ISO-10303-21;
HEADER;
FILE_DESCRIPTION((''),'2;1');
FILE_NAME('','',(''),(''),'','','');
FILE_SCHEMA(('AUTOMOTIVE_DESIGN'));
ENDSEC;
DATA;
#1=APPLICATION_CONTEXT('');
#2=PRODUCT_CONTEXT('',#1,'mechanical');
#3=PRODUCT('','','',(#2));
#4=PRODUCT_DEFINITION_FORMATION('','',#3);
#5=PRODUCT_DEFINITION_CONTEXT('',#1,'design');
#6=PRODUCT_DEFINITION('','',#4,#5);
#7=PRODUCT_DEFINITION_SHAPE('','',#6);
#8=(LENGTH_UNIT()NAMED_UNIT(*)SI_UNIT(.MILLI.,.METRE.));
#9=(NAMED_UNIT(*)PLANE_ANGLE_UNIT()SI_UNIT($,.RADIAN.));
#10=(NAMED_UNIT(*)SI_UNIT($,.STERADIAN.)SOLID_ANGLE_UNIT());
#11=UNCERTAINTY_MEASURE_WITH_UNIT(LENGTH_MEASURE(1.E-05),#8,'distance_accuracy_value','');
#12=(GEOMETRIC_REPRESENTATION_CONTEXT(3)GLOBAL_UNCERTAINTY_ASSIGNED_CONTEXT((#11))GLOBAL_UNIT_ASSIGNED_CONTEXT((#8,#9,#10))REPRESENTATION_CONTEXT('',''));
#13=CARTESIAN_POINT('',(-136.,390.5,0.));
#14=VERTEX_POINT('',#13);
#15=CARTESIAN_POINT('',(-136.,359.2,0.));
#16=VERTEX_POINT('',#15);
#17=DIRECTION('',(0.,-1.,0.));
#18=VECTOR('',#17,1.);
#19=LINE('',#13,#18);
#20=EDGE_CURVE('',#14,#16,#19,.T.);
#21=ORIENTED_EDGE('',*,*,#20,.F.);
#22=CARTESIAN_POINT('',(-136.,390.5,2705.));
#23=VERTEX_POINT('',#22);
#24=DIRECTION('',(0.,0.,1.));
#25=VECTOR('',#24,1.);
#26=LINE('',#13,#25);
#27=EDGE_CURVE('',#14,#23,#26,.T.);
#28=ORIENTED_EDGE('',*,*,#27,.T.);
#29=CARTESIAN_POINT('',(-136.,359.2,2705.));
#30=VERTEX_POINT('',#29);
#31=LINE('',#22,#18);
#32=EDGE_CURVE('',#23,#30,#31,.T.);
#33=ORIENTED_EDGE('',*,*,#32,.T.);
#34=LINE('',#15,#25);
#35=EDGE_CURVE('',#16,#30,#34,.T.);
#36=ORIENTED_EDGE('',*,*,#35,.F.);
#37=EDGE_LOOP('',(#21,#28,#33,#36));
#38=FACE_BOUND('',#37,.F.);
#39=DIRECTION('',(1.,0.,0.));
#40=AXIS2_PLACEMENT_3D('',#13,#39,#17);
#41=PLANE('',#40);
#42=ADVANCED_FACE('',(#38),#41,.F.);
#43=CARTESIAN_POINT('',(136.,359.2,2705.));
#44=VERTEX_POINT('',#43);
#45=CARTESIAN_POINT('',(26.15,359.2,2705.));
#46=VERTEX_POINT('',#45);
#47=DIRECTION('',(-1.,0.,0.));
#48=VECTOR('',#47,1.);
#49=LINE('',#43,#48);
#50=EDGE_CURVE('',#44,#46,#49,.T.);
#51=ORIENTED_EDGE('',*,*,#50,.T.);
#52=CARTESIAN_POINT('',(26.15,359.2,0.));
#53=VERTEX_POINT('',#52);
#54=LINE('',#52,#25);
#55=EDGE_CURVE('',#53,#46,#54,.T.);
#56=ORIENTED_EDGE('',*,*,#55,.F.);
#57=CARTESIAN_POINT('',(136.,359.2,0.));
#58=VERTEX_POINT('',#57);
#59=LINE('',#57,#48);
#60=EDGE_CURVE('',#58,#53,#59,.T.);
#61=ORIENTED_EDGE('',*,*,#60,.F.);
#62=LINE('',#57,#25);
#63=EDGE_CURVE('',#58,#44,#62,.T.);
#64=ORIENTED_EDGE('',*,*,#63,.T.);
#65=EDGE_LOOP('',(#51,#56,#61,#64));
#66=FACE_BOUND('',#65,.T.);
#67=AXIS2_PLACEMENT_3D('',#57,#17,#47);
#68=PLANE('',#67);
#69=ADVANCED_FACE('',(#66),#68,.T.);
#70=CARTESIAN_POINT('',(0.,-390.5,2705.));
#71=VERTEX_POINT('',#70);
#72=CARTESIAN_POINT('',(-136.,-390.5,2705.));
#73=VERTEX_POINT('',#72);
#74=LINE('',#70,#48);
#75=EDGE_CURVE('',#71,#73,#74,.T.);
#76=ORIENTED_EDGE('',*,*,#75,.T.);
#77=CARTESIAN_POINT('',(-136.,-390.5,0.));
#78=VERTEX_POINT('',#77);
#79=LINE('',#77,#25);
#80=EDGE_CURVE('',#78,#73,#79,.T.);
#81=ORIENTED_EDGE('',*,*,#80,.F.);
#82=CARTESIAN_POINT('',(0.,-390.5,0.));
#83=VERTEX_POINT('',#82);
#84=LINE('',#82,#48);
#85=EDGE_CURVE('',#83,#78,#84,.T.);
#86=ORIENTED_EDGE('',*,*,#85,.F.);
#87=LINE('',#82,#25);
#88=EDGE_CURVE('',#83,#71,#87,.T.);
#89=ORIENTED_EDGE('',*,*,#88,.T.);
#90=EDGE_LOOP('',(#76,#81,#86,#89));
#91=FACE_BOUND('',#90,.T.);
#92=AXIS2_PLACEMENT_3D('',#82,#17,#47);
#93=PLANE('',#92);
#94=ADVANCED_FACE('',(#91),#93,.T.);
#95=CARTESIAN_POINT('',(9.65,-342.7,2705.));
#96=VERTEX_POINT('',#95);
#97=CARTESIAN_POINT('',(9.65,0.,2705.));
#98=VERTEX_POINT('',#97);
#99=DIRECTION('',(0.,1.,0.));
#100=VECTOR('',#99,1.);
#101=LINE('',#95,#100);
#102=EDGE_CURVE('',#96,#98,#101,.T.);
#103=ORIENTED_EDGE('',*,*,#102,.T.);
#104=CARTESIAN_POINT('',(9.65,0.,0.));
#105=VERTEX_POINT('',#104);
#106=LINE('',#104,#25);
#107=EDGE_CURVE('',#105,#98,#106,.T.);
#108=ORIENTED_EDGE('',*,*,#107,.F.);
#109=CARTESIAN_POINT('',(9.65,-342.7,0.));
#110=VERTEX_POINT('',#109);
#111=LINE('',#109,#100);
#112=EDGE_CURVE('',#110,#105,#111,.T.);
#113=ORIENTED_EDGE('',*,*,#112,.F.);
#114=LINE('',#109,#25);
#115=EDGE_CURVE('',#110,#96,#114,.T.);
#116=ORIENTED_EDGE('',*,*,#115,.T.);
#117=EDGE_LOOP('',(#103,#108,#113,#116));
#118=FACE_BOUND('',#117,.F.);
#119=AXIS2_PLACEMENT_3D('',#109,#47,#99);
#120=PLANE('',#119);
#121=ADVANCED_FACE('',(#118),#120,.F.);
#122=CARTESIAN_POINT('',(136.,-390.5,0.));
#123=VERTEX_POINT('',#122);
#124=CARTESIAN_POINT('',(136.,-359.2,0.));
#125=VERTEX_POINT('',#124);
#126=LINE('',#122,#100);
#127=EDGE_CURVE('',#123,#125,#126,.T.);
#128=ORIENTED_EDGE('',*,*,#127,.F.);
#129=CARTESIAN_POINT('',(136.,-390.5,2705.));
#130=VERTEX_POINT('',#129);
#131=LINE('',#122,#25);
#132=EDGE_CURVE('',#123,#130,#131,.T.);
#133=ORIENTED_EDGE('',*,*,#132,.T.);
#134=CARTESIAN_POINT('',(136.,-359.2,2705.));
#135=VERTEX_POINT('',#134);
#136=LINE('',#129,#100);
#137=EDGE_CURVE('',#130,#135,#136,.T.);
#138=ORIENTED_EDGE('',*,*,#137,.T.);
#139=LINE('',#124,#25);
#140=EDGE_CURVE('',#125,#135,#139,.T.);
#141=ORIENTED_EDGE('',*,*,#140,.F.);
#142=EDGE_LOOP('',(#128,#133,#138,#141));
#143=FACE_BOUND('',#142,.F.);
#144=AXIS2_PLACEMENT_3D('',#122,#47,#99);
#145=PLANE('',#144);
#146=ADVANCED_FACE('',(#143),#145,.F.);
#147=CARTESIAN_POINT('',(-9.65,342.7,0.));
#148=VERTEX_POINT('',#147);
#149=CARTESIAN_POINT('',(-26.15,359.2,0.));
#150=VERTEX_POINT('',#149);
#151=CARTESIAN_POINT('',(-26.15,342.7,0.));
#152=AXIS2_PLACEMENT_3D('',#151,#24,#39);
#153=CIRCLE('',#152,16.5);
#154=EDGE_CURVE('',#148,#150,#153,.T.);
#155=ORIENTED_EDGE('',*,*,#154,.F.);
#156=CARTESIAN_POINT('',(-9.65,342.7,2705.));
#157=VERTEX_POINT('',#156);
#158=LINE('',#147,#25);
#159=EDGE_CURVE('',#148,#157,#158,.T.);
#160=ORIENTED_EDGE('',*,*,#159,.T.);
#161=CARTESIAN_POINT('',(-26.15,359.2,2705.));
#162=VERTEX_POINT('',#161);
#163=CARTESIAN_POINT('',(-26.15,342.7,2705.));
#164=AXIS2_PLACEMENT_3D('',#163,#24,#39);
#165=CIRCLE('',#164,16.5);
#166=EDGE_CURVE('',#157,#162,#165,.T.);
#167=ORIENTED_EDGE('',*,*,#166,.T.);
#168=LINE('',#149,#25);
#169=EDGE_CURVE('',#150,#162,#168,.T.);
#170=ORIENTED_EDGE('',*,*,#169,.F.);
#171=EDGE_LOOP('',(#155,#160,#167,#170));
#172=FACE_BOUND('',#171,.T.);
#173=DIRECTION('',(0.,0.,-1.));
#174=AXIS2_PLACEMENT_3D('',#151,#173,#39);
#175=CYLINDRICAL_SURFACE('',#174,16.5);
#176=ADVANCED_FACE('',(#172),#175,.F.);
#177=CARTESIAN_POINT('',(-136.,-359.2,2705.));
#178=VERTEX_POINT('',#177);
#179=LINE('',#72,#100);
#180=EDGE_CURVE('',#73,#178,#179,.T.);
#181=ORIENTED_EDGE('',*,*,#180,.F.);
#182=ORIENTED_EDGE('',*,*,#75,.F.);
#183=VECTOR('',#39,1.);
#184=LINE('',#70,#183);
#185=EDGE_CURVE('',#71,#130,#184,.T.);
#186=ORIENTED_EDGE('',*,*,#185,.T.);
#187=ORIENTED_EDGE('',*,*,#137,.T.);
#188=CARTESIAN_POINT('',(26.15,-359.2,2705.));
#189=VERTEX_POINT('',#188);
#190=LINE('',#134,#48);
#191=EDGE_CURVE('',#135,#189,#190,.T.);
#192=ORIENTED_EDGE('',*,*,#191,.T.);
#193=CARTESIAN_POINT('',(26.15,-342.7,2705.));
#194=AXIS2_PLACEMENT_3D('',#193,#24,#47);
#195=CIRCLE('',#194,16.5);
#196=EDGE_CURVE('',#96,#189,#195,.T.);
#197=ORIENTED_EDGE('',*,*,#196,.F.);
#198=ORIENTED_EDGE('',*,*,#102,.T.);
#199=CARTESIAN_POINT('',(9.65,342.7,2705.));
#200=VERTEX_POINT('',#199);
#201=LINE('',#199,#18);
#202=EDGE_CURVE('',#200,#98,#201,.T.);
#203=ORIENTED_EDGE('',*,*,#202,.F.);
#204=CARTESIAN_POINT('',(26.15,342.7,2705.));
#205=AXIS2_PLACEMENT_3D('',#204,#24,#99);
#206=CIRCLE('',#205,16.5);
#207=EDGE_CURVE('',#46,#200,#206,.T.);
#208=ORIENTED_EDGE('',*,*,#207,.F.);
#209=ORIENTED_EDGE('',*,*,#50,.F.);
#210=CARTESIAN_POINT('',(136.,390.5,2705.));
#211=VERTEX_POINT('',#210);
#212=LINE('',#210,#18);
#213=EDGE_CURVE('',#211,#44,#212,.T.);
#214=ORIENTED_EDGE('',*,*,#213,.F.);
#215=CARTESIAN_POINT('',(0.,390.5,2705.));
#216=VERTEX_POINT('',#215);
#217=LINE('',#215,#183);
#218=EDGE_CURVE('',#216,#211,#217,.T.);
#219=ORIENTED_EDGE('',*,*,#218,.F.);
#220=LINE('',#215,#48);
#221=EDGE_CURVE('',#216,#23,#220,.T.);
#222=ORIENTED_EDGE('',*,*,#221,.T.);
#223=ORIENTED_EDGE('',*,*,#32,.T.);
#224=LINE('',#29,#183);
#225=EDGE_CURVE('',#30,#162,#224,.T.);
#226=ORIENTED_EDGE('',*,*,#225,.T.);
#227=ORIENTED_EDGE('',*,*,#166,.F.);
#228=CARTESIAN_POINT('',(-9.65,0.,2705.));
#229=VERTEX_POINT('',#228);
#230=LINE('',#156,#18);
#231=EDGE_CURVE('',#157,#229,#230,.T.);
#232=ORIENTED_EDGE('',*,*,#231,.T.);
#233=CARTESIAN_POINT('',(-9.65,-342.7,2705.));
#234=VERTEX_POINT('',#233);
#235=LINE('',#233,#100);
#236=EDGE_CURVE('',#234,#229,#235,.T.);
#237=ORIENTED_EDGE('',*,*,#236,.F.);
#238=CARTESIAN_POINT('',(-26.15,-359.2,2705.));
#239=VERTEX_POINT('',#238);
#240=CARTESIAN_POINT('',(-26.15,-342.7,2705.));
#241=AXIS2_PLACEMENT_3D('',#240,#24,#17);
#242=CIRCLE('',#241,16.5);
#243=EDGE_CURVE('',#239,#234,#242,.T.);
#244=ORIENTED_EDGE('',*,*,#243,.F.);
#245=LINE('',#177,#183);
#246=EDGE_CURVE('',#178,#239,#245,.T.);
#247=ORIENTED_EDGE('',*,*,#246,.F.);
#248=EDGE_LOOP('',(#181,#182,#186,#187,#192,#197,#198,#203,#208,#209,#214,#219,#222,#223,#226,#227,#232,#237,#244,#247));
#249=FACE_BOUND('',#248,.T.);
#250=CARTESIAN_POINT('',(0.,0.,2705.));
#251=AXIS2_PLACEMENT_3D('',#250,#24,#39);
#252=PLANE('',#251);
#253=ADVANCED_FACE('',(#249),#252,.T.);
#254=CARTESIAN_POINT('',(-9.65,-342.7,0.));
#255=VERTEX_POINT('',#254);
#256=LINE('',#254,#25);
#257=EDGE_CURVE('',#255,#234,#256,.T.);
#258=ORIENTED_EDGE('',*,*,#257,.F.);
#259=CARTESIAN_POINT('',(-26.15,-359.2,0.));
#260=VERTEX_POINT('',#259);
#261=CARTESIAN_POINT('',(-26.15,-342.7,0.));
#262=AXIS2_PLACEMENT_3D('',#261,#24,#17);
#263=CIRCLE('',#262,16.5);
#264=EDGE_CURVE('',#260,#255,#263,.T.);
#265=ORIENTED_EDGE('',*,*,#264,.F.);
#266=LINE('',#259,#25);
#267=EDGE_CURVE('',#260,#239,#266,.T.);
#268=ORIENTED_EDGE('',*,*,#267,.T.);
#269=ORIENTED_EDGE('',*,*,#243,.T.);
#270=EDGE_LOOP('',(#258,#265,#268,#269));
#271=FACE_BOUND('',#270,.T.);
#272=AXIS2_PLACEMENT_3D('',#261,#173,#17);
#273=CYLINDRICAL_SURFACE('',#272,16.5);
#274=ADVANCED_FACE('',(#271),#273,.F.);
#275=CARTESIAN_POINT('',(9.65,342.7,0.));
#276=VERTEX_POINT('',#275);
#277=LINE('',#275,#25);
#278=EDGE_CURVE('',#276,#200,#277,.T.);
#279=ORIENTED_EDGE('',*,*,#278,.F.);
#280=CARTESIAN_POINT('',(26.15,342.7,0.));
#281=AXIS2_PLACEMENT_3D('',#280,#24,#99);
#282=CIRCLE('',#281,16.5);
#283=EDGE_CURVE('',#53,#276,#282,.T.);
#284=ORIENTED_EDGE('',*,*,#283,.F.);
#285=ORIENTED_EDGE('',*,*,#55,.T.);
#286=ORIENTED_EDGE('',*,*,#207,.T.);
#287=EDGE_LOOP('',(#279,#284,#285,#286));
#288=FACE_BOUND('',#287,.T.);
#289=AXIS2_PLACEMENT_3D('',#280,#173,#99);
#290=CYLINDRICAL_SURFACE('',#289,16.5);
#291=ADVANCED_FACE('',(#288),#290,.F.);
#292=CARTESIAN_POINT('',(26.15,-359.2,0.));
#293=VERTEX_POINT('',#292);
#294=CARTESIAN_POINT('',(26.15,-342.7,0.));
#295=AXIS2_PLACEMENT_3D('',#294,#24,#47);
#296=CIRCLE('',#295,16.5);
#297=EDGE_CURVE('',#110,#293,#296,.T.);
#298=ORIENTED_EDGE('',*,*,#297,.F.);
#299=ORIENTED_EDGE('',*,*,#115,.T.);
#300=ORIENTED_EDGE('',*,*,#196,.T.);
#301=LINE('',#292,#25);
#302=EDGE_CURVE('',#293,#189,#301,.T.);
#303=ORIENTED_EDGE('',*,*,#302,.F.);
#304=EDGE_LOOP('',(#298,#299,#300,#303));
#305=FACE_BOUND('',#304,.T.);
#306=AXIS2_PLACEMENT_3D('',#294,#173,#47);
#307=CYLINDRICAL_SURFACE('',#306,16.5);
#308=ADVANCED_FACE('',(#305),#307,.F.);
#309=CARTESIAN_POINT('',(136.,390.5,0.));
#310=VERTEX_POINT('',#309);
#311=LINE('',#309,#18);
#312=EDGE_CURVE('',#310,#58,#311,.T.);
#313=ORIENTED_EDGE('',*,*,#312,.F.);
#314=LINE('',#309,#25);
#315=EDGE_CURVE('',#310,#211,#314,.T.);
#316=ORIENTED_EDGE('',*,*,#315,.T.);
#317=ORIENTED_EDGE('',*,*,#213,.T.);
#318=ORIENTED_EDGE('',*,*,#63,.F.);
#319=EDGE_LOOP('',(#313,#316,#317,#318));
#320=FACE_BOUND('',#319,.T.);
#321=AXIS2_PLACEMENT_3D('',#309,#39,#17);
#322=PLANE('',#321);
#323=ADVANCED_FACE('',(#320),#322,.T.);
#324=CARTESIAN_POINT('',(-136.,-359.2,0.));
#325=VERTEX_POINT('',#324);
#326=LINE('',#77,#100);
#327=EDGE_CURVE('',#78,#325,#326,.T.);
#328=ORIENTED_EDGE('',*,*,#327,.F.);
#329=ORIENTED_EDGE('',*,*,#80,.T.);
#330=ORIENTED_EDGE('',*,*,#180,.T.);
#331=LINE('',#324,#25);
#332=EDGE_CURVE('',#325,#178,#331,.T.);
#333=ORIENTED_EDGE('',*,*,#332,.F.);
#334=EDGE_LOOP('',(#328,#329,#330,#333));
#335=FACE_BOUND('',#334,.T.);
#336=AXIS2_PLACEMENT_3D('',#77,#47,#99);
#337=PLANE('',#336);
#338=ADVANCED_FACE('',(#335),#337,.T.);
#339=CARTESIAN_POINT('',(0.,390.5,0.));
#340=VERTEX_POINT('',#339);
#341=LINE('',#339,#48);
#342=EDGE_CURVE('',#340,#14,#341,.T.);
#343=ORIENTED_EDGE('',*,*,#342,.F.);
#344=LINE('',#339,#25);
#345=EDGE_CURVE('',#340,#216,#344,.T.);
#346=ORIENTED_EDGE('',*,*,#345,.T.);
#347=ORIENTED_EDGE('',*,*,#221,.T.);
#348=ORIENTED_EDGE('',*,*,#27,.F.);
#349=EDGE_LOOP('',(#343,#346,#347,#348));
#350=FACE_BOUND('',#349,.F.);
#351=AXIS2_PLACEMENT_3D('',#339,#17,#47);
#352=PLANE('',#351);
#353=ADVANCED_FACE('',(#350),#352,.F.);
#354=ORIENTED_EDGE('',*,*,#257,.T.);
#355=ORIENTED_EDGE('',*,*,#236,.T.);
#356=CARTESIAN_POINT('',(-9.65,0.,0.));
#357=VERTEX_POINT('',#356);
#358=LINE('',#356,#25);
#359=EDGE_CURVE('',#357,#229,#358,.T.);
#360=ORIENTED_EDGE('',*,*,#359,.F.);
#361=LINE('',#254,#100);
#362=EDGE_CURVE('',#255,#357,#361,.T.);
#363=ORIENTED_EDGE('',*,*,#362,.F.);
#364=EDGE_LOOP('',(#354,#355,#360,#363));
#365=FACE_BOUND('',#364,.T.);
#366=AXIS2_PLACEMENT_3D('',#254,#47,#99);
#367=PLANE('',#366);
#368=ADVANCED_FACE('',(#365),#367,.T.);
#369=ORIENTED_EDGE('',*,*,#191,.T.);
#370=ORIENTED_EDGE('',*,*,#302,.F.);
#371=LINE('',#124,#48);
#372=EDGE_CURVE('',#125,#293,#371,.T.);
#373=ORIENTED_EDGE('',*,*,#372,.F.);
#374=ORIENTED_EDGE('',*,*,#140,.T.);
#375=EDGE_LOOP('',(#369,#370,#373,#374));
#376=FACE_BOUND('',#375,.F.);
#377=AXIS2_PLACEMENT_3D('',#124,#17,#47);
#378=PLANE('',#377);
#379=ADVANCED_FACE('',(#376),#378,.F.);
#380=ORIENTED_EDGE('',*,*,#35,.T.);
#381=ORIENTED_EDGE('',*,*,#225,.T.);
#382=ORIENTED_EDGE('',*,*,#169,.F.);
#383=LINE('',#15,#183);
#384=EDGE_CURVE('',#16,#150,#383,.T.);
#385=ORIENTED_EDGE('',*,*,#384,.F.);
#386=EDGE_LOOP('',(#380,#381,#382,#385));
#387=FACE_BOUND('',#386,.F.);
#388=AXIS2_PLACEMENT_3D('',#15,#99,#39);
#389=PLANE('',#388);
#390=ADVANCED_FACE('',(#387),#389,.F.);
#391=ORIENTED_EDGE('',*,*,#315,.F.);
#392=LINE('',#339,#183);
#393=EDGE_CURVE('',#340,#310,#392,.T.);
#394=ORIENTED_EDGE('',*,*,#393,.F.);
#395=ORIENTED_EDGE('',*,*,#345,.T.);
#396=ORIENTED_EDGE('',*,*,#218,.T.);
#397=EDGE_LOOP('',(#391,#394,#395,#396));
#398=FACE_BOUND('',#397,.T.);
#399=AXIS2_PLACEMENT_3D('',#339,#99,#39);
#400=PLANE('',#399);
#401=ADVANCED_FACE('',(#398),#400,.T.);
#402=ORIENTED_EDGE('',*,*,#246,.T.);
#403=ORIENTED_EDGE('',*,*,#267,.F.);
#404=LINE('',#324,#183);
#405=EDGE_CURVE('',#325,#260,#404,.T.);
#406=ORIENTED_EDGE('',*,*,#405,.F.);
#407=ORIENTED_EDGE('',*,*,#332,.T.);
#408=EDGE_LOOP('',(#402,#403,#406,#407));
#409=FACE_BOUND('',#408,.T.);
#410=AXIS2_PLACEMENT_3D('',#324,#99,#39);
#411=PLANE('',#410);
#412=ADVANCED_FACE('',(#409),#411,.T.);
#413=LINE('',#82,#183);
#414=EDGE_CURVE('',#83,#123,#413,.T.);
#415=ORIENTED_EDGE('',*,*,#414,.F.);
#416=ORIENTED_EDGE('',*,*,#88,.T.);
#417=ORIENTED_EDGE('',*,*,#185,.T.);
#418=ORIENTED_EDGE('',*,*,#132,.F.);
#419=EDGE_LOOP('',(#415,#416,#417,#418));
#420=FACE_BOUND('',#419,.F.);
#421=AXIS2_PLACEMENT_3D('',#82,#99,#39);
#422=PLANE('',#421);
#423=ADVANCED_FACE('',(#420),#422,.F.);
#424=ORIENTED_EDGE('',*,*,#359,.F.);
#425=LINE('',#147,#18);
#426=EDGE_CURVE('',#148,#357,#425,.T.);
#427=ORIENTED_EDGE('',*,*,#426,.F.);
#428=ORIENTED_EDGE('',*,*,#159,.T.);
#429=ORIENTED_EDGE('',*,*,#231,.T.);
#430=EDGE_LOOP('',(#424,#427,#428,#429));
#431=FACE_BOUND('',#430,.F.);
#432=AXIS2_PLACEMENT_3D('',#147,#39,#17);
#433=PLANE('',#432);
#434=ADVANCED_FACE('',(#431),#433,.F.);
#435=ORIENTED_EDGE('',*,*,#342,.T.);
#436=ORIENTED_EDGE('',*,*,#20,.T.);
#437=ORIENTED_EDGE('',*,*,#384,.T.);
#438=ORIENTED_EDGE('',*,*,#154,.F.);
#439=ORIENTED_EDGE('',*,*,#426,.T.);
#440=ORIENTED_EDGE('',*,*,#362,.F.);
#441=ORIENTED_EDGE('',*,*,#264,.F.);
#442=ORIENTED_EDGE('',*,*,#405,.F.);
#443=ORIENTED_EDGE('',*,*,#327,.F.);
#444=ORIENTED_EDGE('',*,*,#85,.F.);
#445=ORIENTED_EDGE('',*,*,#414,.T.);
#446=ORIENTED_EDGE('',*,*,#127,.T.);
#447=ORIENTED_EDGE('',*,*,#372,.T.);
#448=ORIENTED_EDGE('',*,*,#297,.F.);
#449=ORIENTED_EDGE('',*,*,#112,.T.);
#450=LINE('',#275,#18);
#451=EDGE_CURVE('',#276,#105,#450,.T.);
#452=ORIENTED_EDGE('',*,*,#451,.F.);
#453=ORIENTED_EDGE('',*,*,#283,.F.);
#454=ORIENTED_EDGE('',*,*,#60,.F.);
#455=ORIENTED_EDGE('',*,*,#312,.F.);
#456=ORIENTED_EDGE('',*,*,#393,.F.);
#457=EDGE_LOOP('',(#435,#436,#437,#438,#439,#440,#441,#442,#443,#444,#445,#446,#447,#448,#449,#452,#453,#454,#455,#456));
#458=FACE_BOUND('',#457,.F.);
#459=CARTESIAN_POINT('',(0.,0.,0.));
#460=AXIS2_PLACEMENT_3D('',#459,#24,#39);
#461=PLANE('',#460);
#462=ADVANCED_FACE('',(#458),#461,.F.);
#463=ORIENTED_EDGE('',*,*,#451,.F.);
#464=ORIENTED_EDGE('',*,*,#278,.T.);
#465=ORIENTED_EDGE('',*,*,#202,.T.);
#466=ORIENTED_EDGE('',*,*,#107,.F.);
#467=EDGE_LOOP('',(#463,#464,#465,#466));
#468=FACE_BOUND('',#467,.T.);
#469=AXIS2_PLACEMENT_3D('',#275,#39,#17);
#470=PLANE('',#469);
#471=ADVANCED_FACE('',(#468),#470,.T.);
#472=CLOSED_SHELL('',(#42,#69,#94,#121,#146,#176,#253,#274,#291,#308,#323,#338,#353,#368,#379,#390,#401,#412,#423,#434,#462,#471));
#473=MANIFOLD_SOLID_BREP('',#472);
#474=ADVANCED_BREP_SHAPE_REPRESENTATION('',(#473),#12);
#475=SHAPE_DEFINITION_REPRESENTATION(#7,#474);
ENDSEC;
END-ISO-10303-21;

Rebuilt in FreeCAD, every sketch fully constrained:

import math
import FreeCAD as App
import Part
import Sketcher

V = App.Vector
Q = App.Units.Quantity

doc = App.newDocument("Part")
body = doc.addObject("PartDesign::Body", "Body")

# Sketch on XY plane
sketch1 = doc.addObject("Sketcher::SketchObject", "Sketch")
body.addObject(sketch1)
sketch1.AttachmentSupport = (doc.XY_Plane, [""])
sketch1.MapMode = "FlatFace"
sketch1.addGeometry([
    Part.LineSegment(V(-136, -359, 0), V(-136, -390, 0)),  # 0
    Part.LineSegment(V(-136, -390, 0), V(136, -390, 0)),  # 1
    Part.LineSegment(V(136, -390, 0), V(136, -359, 0)),  # 2
    Part.LineSegment(V(136, -359, 0), V(26, -359, 0)),  # 3
    Part.ArcOfCircle(Part.Circle(V(26, -343, 0), V(0, 0, 1), 16), math.radians(180), math.radians(270)),  # 4
    Part.LineSegment(V(10, -343, 0), V(10, 343, 0)),  # 5
    Part.ArcOfCircle(Part.Circle(V(26, 343, 0), V(0, 0, 1), 16), math.radians(90), math.radians(180)),  # 6
    Part.LineSegment(V(26, 359, 0), V(136, 359, 0)),  # 7
    Part.LineSegment(V(136, 359, 0), V(136, 390, 0)),  # 8
    Part.LineSegment(V(136, 390, 0), V(-136, 390, 0)),  # 9
    Part.LineSegment(V(-136, 390, 0), V(-136, 359, 0)),  # 10
    Part.LineSegment(V(-136, 359, 0), V(-26, 359, 0)),  # 11
    Part.ArcOfCircle(Part.Circle(V(-26, 343, 0), V(0, 0, 1), 16), math.radians(0), math.radians(90)),  # 12
    Part.LineSegment(V(-10, 343, 0), V(-10, -343, 0)),  # 13
    Part.ArcOfCircle(Part.Circle(V(-26, -343, 0), V(0, 0, 1), 16), math.radians(-90), math.radians(0)),  # 14
    Part.LineSegment(V(-26, -359, 0), V(-136, -359, 0)),  # 15
], False)
sketch1.addConstraint([
    Sketcher.Constraint("Coincident", 0, 2, 1, 1),
    Sketcher.Constraint("Coincident", 1, 2, 2, 1),
    Sketcher.Constraint("Coincident", 2, 2, 3, 1),
    Sketcher.Constraint("Tangent", 3, 2, 4, 2),
    Sketcher.Constraint("Tangent", 4, 1, 5, 1),
    Sketcher.Constraint("Tangent", 5, 2, 6, 2),
    Sketcher.Constraint("Tangent", 6, 1, 7, 1),
    Sketcher.Constraint("Coincident", 7, 2, 8, 1),
    Sketcher.Constraint("Coincident", 8, 2, 9, 1),
    Sketcher.Constraint("Coincident", 9, 2, 10, 1),
    Sketcher.Constraint("Coincident", 10, 2, 11, 1),
    Sketcher.Constraint("Tangent", 11, 2, 12, 2),
    Sketcher.Constraint("Tangent", 12, 1, 13, 1),
    Sketcher.Constraint("Tangent", 13, 2, 14, 2),
    Sketcher.Constraint("Tangent", 14, 1, 15, 1),
    Sketcher.Constraint("Coincident", 15, 2, 0, 1),
    Sketcher.Constraint("Vertical", 0),
    Sketcher.Constraint("Horizontal", 1),
    Sketcher.Constraint("Vertical", 2),
    Sketcher.Constraint("Horizontal", 3),
    Sketcher.Constraint("Vertical", 5),
    Sketcher.Constraint("Horizontal", 7),
    Sketcher.Constraint("Vertical", 8),
    Sketcher.Constraint("Horizontal", 9),
    Sketcher.Constraint("Vertical", 10),
    Sketcher.Constraint("Horizontal", 11),
    Sketcher.Constraint("Vertical", 13),
    Sketcher.Constraint("Horizontal", 15),
    Sketcher.Constraint("Equal", 4, 6),
    Sketcher.Constraint("Equal", 6, 12),
    Sketcher.Constraint("Equal", 12, 14),
    Sketcher.Constraint("Symmetric", 4, 3, 12, 3, -1, 1),
    Sketcher.Constraint("Symmetric", 0, 2, 8, 2, -1, 1),
    Sketcher.Constraint("Symmetric", 7, 2, 10, 2, -2),
    Sketcher.Constraint("Symmetric", 2, 2, 15, 2, -2),
    Sketcher.Constraint("Radius", 4, Q("16.5 mm")),
    Sketcher.Constraint("DistanceY", 0, 2, 0, 1, Q("31.3 mm")),
    Sketcher.Constraint("DistanceX", 0, 2, -1, 1, Q("136 mm")),
    Sketcher.Constraint("DistanceY", 0, 2, -1, 1, Q("390.5 mm")),
    Sketcher.Constraint("DistanceX", -1, 1, 4, 1, Q("9.65 mm")),
])
pad1 = doc.addObject("PartDesign::Pad", "Pad")
body.addObject(pad1)
pad1.Profile = sketch1
pad1.Length = 2705

doc.recompute()
